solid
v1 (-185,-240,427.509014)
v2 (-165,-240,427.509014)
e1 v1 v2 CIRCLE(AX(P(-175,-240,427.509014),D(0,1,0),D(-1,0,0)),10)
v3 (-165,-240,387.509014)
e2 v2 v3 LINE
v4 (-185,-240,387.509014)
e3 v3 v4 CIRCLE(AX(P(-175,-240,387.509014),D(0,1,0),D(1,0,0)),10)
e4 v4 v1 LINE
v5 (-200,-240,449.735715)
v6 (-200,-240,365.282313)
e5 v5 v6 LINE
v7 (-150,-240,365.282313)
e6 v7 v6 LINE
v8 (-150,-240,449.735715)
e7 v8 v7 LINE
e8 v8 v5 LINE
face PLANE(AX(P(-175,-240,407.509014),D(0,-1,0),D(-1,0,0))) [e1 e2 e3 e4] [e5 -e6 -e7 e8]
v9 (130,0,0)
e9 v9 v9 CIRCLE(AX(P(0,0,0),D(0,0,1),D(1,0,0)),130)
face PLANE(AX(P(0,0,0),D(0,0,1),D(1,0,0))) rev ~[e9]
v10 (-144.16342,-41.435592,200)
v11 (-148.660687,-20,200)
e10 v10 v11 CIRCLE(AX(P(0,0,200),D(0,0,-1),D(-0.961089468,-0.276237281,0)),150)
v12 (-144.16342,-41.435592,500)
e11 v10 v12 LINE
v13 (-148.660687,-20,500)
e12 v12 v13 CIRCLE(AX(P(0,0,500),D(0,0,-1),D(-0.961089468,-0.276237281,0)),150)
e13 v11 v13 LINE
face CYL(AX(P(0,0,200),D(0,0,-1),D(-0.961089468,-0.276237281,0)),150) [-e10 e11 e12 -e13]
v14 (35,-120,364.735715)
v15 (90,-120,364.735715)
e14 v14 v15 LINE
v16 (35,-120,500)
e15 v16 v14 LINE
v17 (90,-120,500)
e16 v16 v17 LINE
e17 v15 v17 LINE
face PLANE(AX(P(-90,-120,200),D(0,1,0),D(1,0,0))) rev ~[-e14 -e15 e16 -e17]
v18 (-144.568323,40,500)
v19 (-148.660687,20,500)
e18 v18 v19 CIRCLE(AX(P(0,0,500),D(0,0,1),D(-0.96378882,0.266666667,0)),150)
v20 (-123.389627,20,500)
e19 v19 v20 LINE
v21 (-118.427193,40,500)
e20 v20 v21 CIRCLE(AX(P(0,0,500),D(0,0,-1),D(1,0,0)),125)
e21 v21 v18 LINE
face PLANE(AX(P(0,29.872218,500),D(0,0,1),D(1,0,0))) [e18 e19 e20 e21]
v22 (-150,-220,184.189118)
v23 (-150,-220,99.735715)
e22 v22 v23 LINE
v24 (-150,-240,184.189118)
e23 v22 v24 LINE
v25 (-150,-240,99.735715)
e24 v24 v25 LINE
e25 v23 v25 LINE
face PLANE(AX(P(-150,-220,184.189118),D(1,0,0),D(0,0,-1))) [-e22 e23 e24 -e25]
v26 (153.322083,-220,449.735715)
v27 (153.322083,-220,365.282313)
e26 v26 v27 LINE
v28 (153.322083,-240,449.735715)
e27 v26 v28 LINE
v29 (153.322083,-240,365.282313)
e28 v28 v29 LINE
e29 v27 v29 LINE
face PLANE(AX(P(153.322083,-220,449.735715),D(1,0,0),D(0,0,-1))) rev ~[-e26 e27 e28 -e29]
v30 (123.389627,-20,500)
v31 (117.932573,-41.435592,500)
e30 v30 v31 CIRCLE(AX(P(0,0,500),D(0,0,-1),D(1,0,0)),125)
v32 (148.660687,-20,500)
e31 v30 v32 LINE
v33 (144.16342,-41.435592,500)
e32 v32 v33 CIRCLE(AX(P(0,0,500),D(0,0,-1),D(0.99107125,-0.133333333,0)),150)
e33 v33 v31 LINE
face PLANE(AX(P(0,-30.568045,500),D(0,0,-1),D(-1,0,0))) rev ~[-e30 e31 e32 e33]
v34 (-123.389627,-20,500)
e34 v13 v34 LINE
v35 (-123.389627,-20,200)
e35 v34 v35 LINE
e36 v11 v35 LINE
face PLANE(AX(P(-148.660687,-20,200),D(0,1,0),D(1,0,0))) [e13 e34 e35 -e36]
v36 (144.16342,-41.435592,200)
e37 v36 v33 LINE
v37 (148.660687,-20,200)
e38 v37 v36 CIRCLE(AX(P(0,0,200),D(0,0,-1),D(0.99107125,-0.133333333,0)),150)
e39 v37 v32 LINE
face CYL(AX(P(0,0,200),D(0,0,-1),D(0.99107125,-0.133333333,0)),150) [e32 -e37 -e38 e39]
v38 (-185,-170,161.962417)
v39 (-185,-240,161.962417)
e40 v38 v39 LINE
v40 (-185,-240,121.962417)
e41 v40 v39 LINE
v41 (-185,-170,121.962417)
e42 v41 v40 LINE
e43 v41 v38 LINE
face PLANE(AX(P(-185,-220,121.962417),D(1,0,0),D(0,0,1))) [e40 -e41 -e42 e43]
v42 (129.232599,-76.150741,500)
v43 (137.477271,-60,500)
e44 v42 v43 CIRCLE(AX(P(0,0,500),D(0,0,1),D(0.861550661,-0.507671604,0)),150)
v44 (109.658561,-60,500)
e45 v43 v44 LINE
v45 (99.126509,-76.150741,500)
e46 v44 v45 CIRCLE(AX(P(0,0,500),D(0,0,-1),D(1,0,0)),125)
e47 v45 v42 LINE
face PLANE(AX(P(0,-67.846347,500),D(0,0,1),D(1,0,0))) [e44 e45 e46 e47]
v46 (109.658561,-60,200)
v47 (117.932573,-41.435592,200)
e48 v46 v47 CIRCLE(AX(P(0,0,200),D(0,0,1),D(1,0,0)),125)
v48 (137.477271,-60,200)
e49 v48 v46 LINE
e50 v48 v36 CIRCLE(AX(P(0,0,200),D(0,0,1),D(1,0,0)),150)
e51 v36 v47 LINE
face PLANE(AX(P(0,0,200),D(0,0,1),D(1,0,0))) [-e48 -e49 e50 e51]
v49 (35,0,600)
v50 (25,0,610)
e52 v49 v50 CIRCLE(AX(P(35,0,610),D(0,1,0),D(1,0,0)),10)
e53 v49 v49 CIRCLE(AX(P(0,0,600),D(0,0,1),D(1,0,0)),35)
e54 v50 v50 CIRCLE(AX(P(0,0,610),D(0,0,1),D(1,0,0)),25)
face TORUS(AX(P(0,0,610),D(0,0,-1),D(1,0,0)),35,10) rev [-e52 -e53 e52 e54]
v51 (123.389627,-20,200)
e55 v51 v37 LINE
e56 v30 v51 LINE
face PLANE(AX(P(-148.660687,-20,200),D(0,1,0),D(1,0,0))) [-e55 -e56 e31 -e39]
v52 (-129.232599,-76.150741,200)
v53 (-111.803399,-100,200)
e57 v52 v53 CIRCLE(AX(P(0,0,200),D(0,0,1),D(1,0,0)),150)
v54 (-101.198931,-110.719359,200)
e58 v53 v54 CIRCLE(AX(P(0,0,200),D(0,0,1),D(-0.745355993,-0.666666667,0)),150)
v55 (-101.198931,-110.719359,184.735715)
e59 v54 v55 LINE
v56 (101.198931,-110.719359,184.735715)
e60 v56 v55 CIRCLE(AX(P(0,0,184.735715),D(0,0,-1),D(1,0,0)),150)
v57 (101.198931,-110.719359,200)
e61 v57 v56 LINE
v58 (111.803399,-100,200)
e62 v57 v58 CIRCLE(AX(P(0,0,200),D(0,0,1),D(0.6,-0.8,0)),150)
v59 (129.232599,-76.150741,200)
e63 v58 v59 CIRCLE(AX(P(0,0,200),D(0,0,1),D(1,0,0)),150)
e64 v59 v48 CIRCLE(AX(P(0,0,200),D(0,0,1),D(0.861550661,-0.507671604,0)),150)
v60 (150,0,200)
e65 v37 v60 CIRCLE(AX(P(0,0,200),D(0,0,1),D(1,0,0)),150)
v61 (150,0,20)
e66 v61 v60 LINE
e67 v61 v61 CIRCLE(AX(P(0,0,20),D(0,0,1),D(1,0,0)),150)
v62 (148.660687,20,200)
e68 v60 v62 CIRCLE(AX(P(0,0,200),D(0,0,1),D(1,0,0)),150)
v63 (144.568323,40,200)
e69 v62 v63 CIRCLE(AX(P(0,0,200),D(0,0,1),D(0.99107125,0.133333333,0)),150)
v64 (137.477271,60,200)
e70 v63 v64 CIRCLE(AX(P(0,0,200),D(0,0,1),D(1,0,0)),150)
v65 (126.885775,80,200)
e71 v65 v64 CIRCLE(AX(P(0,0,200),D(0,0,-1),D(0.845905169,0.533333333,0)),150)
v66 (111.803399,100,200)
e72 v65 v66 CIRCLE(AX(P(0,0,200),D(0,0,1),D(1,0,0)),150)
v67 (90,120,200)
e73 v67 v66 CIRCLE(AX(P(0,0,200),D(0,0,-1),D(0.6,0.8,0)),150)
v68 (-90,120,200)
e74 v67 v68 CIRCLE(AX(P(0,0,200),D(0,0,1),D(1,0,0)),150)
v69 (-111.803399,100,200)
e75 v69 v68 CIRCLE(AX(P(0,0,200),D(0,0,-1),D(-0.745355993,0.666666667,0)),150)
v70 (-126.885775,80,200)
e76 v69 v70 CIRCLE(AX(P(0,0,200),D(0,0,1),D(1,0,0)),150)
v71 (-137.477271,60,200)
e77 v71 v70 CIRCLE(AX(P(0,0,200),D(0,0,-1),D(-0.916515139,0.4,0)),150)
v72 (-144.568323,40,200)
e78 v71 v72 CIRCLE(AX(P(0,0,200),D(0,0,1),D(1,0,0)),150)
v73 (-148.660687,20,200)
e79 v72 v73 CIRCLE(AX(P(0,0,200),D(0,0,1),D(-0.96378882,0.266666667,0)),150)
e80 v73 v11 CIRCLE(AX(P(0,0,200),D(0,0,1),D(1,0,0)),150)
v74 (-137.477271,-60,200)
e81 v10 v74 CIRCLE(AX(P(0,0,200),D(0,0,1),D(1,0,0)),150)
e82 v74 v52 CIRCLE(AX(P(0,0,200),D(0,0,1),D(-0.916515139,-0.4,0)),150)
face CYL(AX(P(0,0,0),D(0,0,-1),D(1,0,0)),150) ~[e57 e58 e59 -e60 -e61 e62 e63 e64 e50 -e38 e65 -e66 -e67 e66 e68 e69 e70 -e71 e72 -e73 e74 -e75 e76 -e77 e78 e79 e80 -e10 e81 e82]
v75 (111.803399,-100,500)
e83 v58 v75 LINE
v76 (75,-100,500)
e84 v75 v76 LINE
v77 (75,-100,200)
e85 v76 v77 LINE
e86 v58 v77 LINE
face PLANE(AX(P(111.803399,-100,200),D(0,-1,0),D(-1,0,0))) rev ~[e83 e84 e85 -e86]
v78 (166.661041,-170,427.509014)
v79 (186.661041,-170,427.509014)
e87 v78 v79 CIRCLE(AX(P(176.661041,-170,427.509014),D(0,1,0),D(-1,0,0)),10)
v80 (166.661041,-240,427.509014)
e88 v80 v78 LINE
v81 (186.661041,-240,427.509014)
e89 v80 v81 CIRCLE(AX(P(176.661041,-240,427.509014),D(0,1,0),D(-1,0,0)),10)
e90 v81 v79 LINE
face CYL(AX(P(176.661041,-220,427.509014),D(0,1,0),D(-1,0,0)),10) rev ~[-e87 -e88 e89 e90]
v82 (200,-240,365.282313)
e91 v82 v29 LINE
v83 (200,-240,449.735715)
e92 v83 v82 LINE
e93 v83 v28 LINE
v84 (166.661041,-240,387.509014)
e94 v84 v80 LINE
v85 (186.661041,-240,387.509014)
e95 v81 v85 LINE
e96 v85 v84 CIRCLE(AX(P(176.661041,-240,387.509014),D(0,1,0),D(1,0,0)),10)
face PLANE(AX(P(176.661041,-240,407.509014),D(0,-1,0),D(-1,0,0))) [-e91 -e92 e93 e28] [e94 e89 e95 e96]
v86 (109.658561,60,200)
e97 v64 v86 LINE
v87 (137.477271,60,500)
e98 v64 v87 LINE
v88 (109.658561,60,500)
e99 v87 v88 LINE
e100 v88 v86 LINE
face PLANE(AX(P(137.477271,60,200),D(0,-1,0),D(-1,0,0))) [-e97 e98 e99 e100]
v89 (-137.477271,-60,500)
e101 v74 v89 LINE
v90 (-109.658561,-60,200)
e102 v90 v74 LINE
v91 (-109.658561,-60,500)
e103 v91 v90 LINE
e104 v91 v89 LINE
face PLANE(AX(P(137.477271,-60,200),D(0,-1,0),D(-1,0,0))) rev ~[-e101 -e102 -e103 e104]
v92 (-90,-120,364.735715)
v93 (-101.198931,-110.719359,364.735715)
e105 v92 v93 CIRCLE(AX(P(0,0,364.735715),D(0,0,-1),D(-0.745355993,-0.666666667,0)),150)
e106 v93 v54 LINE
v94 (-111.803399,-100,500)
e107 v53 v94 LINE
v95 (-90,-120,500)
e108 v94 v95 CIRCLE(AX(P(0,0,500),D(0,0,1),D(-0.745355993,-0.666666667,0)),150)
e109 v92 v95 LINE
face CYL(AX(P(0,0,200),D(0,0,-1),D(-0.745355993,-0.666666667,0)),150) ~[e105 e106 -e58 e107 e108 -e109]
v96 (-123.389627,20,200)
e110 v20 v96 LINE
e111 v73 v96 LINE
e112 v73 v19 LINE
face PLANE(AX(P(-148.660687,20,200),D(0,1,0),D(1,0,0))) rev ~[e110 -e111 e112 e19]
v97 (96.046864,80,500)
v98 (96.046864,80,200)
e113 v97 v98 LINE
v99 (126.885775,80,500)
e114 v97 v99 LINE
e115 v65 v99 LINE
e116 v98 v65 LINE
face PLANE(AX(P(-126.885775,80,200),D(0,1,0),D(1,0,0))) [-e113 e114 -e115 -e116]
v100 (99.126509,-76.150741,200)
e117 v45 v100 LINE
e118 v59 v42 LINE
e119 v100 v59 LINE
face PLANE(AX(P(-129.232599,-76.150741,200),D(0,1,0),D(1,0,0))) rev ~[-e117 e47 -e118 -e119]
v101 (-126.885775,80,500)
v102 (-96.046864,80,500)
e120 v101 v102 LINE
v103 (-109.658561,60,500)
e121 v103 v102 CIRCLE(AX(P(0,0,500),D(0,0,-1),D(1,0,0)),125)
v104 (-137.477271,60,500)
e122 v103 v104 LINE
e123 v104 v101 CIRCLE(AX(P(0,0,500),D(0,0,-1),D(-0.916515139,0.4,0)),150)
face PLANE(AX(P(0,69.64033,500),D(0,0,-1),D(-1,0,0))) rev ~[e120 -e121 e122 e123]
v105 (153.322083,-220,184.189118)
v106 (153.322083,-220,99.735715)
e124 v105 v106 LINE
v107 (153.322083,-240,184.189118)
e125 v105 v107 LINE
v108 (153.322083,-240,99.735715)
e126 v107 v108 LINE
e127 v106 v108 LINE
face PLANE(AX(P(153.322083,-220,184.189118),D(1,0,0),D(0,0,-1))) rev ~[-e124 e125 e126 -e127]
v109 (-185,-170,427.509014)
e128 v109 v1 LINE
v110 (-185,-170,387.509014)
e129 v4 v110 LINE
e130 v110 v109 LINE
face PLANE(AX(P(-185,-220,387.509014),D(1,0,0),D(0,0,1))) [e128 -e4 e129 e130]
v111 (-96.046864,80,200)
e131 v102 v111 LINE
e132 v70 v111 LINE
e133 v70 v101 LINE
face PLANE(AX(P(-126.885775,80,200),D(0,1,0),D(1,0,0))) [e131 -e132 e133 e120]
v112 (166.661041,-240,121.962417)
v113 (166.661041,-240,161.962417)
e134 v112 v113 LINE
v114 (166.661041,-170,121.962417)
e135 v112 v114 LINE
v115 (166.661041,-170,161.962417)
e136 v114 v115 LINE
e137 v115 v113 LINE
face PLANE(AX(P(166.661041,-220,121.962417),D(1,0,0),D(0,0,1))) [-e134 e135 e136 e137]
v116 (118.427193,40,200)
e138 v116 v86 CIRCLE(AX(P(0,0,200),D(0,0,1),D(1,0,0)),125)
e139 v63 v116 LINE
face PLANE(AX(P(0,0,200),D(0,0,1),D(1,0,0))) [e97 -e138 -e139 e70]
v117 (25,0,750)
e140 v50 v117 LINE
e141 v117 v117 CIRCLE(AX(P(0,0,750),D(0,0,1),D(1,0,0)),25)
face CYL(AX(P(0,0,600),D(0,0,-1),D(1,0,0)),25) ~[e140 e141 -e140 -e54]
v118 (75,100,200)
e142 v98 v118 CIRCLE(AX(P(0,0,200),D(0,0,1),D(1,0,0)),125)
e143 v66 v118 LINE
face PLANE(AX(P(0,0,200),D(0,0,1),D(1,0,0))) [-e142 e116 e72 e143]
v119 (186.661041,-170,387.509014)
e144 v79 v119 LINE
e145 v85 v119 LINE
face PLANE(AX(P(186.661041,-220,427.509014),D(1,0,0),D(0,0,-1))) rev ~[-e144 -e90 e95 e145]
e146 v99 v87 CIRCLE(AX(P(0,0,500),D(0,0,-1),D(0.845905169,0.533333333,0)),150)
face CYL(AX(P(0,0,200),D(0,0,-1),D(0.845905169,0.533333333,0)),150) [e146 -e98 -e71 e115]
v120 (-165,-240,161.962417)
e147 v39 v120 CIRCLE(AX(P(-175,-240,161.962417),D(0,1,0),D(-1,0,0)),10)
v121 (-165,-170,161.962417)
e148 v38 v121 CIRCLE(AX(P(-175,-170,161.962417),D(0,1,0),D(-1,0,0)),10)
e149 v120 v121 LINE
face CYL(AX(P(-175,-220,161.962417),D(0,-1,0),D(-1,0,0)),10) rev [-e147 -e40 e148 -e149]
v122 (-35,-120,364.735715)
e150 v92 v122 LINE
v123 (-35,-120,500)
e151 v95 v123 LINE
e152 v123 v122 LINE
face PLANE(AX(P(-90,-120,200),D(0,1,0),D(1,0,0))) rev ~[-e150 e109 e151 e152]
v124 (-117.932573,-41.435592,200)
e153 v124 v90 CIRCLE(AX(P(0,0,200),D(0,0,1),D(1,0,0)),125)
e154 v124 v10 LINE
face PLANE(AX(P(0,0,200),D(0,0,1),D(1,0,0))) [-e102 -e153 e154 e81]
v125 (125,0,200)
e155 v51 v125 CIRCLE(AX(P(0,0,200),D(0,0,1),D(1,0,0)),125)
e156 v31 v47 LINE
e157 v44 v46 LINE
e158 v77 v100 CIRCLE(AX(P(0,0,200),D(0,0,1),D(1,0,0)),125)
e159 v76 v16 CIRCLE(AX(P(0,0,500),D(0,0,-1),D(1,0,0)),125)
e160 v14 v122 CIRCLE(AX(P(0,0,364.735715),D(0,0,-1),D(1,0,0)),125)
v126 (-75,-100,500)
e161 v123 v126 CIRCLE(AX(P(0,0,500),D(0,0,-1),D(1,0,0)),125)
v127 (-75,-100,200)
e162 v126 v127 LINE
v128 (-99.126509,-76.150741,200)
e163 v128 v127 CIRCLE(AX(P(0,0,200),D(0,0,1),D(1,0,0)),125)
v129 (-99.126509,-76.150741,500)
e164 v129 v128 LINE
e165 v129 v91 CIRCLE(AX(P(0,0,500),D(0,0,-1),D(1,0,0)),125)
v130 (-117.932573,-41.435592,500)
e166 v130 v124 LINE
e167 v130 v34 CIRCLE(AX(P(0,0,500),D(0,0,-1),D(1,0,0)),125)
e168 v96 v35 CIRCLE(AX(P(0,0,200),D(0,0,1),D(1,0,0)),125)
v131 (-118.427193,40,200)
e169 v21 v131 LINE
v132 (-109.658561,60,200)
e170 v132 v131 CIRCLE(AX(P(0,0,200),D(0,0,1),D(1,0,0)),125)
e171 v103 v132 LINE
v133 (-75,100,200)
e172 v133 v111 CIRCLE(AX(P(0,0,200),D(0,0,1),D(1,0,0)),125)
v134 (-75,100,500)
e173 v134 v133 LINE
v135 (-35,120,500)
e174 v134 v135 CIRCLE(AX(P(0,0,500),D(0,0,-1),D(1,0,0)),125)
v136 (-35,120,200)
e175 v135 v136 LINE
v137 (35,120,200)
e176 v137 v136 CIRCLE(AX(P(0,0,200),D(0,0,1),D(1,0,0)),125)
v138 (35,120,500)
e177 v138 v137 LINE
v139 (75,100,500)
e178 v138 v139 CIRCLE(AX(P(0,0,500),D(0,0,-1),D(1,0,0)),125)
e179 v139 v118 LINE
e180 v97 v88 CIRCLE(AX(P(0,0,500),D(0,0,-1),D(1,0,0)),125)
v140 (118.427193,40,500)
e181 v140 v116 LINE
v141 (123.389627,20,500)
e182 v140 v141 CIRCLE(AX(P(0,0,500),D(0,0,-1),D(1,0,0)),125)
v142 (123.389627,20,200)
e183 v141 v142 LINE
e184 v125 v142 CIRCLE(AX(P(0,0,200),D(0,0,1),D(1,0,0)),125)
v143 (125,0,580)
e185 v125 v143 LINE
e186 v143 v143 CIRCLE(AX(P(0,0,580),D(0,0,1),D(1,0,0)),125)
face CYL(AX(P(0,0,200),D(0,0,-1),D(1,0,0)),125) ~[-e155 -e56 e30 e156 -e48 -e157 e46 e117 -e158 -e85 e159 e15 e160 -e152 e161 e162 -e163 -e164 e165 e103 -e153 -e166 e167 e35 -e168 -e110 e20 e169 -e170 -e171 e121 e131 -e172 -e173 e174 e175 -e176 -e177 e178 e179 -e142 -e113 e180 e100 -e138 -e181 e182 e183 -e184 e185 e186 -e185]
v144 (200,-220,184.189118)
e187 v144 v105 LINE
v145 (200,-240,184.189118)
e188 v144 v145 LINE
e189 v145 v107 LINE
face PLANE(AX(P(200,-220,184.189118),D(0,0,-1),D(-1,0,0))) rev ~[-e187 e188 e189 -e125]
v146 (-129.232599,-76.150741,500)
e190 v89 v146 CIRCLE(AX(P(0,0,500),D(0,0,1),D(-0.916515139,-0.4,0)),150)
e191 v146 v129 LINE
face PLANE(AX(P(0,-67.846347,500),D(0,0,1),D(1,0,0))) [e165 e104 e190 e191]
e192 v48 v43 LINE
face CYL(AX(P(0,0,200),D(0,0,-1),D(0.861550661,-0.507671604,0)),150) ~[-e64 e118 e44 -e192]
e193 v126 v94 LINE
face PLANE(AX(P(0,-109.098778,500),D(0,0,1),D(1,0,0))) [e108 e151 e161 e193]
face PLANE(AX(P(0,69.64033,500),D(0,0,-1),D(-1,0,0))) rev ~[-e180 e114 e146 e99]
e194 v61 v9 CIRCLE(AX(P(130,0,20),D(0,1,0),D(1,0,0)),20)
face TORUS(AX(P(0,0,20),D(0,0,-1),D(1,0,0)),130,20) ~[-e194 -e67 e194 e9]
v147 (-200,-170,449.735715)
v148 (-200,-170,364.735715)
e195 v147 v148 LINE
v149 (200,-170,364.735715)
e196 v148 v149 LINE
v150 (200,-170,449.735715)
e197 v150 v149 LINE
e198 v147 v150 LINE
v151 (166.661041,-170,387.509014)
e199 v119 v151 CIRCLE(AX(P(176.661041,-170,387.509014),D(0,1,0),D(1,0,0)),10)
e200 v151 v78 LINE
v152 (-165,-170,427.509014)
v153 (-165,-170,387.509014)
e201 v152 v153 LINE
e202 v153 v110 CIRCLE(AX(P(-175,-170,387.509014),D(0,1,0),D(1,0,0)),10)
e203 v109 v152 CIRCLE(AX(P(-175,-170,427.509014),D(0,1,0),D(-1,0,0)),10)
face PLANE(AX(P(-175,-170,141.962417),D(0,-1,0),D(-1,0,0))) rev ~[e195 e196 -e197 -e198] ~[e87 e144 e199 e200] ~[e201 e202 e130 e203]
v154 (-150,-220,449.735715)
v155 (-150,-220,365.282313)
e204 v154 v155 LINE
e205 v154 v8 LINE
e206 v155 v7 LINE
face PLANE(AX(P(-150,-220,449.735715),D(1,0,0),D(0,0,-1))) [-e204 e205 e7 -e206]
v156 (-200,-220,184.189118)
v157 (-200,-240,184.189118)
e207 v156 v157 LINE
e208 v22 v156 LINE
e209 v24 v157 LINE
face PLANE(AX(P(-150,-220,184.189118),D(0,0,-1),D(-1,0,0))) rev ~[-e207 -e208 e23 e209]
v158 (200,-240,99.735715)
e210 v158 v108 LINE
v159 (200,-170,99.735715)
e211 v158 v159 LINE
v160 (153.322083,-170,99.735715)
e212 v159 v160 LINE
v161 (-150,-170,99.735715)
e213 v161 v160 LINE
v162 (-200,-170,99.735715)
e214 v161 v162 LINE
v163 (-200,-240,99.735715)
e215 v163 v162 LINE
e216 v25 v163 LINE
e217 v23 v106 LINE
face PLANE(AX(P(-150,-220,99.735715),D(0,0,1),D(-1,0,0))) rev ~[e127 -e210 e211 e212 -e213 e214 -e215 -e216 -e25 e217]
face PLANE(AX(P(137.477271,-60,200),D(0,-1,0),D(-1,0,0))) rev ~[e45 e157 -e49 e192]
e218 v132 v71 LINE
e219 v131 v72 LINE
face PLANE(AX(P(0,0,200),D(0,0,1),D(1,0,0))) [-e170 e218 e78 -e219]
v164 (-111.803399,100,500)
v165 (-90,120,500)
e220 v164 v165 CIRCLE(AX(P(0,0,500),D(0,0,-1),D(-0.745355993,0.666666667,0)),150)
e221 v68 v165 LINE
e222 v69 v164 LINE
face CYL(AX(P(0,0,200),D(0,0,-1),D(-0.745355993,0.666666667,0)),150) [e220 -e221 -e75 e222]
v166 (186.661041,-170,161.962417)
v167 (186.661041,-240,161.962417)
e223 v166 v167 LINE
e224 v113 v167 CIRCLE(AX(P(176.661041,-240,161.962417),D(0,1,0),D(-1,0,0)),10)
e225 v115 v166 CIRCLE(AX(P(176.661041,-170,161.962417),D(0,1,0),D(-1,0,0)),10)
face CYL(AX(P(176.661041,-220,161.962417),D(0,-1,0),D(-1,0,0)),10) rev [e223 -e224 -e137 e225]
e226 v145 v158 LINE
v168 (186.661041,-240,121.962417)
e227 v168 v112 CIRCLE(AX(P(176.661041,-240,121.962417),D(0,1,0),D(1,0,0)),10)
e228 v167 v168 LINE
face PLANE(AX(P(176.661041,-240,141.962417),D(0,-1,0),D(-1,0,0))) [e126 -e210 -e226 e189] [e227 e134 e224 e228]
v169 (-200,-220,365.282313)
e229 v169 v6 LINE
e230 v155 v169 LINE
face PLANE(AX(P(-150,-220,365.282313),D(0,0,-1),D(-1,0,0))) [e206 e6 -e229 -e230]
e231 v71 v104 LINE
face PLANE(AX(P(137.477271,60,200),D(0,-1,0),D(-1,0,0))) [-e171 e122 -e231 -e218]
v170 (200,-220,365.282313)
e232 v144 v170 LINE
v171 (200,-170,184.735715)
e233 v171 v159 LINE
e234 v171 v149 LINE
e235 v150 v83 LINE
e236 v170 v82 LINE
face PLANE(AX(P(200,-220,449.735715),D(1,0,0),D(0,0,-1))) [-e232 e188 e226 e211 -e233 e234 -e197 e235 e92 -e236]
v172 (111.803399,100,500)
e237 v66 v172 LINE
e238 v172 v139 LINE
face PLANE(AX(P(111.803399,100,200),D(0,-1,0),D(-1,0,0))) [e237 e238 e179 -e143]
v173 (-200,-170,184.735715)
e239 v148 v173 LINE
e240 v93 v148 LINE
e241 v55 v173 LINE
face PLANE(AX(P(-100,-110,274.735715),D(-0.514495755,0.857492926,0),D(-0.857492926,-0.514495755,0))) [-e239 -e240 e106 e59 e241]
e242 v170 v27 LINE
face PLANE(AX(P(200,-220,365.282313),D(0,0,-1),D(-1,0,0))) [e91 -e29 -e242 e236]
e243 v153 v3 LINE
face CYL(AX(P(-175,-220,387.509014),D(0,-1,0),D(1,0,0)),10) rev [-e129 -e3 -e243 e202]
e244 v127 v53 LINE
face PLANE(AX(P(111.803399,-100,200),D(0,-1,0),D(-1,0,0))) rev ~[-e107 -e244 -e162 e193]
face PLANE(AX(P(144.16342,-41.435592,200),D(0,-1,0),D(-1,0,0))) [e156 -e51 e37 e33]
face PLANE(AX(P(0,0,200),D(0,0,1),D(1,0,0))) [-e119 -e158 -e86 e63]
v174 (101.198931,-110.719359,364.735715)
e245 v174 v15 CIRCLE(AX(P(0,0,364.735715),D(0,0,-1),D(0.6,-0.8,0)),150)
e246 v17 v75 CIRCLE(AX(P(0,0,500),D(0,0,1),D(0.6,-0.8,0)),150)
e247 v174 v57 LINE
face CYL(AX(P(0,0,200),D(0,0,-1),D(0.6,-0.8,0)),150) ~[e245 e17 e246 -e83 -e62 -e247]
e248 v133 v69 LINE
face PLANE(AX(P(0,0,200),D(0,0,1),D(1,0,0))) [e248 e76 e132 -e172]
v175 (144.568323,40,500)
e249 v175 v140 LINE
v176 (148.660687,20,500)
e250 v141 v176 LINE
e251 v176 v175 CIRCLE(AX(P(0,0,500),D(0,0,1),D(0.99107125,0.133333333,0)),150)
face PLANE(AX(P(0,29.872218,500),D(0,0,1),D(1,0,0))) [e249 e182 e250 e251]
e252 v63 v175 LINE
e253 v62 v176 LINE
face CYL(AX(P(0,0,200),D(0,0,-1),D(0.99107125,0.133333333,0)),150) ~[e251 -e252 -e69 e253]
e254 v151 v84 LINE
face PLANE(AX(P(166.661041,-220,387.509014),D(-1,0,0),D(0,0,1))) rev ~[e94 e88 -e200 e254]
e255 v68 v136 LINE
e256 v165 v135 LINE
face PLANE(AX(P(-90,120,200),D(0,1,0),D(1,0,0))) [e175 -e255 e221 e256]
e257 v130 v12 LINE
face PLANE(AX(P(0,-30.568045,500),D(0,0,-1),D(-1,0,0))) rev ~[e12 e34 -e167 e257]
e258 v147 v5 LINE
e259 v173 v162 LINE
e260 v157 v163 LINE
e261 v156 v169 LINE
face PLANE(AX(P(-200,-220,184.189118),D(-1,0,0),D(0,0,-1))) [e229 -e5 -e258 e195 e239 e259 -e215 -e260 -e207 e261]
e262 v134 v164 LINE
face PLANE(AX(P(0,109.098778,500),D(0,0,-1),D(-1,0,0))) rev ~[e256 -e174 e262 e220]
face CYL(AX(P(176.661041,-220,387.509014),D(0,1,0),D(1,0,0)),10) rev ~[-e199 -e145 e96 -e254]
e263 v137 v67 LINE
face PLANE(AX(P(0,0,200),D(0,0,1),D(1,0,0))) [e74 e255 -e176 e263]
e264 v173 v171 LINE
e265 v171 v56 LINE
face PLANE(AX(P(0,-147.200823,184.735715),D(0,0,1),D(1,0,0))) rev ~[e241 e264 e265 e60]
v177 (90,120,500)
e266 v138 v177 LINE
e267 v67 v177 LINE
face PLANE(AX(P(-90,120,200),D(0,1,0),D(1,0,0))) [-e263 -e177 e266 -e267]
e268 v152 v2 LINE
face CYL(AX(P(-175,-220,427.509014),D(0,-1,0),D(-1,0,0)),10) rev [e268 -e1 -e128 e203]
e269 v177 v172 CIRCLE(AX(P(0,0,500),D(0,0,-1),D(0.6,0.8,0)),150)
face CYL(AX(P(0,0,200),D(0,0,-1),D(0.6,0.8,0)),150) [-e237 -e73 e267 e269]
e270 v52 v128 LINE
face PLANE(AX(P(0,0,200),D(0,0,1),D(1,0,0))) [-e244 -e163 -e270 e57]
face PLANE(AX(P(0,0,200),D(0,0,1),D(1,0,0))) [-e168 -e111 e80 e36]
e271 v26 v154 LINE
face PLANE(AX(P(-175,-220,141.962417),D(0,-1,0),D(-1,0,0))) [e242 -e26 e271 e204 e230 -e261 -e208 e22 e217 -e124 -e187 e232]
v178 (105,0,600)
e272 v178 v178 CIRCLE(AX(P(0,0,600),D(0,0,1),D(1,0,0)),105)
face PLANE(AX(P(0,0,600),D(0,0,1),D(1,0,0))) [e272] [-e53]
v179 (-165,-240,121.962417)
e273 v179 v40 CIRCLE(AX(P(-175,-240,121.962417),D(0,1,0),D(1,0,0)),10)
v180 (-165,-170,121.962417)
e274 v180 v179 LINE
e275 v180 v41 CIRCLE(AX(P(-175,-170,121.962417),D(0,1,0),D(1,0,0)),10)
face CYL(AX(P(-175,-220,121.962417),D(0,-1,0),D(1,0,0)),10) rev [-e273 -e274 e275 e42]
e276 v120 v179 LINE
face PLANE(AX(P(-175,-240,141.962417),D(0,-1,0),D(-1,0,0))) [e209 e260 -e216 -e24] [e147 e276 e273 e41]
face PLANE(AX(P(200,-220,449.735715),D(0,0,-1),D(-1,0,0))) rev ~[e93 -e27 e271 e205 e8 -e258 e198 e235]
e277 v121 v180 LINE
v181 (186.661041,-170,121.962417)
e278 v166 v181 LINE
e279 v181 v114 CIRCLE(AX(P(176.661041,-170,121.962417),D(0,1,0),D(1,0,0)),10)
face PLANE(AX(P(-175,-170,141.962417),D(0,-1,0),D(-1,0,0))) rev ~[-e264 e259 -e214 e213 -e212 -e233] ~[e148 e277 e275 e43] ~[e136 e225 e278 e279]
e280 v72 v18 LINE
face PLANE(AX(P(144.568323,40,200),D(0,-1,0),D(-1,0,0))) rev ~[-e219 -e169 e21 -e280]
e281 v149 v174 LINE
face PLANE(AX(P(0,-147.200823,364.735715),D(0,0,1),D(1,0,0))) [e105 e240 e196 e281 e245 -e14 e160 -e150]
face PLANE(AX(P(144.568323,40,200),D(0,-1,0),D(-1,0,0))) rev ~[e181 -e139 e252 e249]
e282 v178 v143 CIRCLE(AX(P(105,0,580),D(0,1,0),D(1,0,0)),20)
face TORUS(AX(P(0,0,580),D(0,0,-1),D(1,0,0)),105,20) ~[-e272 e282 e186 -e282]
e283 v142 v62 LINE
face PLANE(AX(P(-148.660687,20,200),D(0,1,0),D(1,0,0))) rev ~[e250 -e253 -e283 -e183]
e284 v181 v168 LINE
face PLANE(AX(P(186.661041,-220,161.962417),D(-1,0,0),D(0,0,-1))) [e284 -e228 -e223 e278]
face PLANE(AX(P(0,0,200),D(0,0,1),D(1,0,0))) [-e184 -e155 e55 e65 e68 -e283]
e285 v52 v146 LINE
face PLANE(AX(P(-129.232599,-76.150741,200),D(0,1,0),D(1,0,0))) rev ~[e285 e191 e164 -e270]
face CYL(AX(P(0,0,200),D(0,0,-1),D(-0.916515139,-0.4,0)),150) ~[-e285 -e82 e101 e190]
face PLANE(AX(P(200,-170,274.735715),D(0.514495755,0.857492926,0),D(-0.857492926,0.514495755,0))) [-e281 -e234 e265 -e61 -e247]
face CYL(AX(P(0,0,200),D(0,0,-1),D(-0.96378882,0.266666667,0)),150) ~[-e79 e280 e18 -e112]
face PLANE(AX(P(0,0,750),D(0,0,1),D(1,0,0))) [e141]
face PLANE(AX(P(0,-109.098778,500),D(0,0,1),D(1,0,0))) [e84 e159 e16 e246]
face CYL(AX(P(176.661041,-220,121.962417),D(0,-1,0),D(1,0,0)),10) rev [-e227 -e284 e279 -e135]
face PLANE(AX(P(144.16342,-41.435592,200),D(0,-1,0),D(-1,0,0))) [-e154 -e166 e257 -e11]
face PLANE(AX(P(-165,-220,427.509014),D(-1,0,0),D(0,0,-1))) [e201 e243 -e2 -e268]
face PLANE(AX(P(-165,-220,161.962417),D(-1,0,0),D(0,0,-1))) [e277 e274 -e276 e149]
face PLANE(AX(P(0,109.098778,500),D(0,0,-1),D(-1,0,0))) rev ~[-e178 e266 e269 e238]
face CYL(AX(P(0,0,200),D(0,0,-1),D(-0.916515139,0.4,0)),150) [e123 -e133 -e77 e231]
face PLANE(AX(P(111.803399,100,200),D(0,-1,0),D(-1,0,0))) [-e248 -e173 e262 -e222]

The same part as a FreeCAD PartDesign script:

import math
import FreeCAD as App
import Part
import Sketcher

V = App.Vector
Q = App.Units.Quantity


def edges_at(feature, points):
    """Names of the edges that pass closest to the given points."""
    edges = feature.Shape.Edges
    near = lambda p: min(range(len(edges)), key=lambda i: edges[i].distToShape(Part.Vertex(*p))[0])
    return sorted({f"Edge{near(p) + 1}" for p in points})

doc = App.newDocument("Part")
body = doc.addObject("PartDesign::Body", "Body")

# Sketch on XY plane
sketch1 = body.newObject("Sketcher::SketchObject", "Sketch")
sketch1.AttachmentSupport = (doc.getObject("XY_Plane"), [""])
sketch1.MapMode = "FlatFace"
sketch1.addGeometry(Part.Circle(V(0, 0, 0), V(0, 0, 1), 150), False)
sketch1.addConstraint([
    Sketcher.Constraint("Coincident", 0, 3, -1, 1),
    Sketcher.Constraint("Diameter", 0, Q("300 mm")),
])
pad1 = body.newObject("PartDesign::Pad", "Pad")
pad1.Profile = sketch1
pad1.Length = 200

# Sketch on XY plane
sketch2 = body.newObject("Sketcher::SketchObject", "Sketch001")
sketch2.AttachmentSupport = (doc.getObject("XY_Plane"), [""])
sketch2.MapMode = "FlatFace"
sketch2.AttachmentOffset = App.Placement(V(0, 0, 200), App.Rotation())
sketch2.addGeometry([
    Part.LineSegment(V(90, 120, 0), V(-90, 120, 0)),  # 0
    Part.ArcOfCircle(Part.Circle(V(0, 0, 0), V(0, 0, 1), 150), math.radians(126.87), math.radians(138.19)),  # 1
    Part.LineSegment(V(-112, 100, 0), V(112, 100, 0)),  # 2
    Part.ArcOfCircle(Part.Circle(V(0, 0, 0), V(0, 0, 1), 150), math.radians(41.81), math.radians(53.13)),  # 3
    Part.LineSegment(V(127, 80, 0), V(-127, 80, 0)),  # 4
    Part.ArcOfCircle(Part.Circle(V(0, 0, 0), V(0, 0, 1), 150), math.radians(147.77), math.radians(156.42)),  # 5
    Part.LineSegment(V(-137, 60, 0), V(137, 60, 0)),  # 6
    Part.ArcOfCircle(Part.Circle(V(0, 0, 0), V(0, 0, 1), 150), math.radians(23.58), math.radians(32.23)),  # 7
    Part.LineSegment(V(-144, -41, 0), V(144, -41, 0)),  # 8
    Part.ArcOfCircle(Part.Circle(V(0, 0, 0), V(0, 0, 1), 150), math.radians(-16.04), math.radians(-7.66)),  # 9
    Part.LineSegment(V(149, -20, 0), V(-149, -20, 0)),  # 10
    Part.ArcOfCircle(Part.Circle(V(0, 0, 0), V(0, 0, 1), 150), math.radians(-172.34), math.radians(-163.96)),  # 11
    Part.LineSegment(V(112, -100, 0), V(-112, -100, 0)),  # 12
    Part.ArcOfCircle(Part.Circle(V(0, 0, 0), V(0, 0, 1), 150), math.radians(-138.19), math.radians(-126.87)),  # 13
    Part.LineSegment(V(-90, -120, 0), V(90, -120, 0)),  # 14
    Part.ArcOfCircle(Part.Circle(V(0, 0, 0), V(0, 0, 1), 150), math.radians(-53.13), math.radians(-41.81)),  # 15
    Part.LineSegment(V(145, 40, 0), V(-145, 40, 0)),  # 16
    Part.ArcOfCircle(Part.Circle(V(0, 0, 0), V(0, 0, 1), 150), math.radians(164.53), math.radians(172.34)),  # 17
    Part.LineSegment(V(-149, 20, 0), V(149, 20, 0)),  # 18
    Part.ArcOfCircle(Part.Circle(V(0, 0, 0), V(0, 0, 1), 150), math.radians(7.66), math.radians(15.47)),  # 19
    Part.LineSegment(V(137, -60, 0), V(-137, -60, 0)),  # 20
    Part.ArcOfCircle(Part.Circle(V(0, 0, 0), V(0, 0, 1), 150), math.radians(-156.42), math.radians(-149.49)),  # 21
    Part.LineSegment(V(-129, -76, 0), V(129, -76, 0)),  # 22
    Part.ArcOfCircle(Part.Circle(V(0, 0, 0), V(0, 0, 1), 150), math.radians(-30.51), math.radians(-23.58)),  # 23
], False)
sketch2.addConstraint([
    Sketcher.Constraint("Coincident", 0, 2, 1, 1),
    Sketcher.Constraint("Coincident", 1, 2, 2, 1),
    Sketcher.Constraint("Coincident", 2, 2, 3, 1),
    Sketcher.Constraint("Coincident", 3, 2, 0, 1),
    Sketcher.Constraint("Coincident", 4, 2, 5, 1),
    Sketcher.Constraint("Coincident", 5, 2, 6, 1),
    Sketcher.Constraint("Coincident", 6, 2, 7, 1),
    Sketcher.Constraint("Coincident", 7, 2, 4, 1),
    Sketcher.Constraint("Coincident", 8, 2, 9, 1),
    Sketcher.Constraint("Coincident", 9, 2, 10, 1),
    Sketcher.Constraint("Coincident", 10, 2, 11, 1),
    Sketcher.Constraint("Coincident", 11, 2, 8, 1),
    Sketcher.Constraint("Coincident", 12, 2, 13, 1),
    Sketcher.Constraint("Coincident", 13, 2, 14, 1),
    Sketcher.Constraint("Coincident", 14, 2, 15, 1),
    Sketcher.Constraint("Coincident", 15, 2, 12, 1),
    Sketcher.Constraint("Coincident", 16, 2, 17, 1),
    Sketcher.Constraint("Coincident", 17, 2, 18, 1),
    Sketcher.Constraint("Coincident", 18, 2, 19, 1),
    Sketcher.Constraint("Coincident", 19, 2, 16, 1),
    Sketcher.Constraint("Coincident", 20, 2, 21, 1),
    Sketcher.Constraint("Coincident", 21, 2, 22, 1),
    Sketcher.Constraint("Coincident", 22, 2, 23, 1),
    Sketcher.Constraint("Coincident", 23, 2, 20, 1),
    Sketcher.Constraint("Horizontal", 0),
    Sketcher.Constraint("Horizontal", 2),
    Sketcher.Constraint("Horizontal", 4),
    Sketcher.Constraint("Horizontal", 6),
    Sketcher.Constraint("Horizontal", 8),
    Sketcher.Constraint("Horizontal", 10),
    Sketcher.Constraint("Horizontal", 12),
    Sketcher.Constraint("Horizontal", 14),
    Sketcher.Constraint("Horizontal", 16),
    Sketcher.Constraint("Horizontal", 18),
    Sketcher.Constraint("Horizontal", 20),
    Sketcher.Constraint("Horizontal", 22),
    Sketcher.Constraint("Coincident", 1, 3, -1, 1),
    Sketcher.Constraint("Coincident", 3, 3, -1, 1),
    Sketcher.Constraint("Coincident", 5, 3, -1, 1),
    Sketcher.Constraint("Coincident", 7, 3, -1, 1),
    Sketcher.Constraint("Coincident", 9, 3, -1, 1),
    Sketcher.Constraint("Coincident", 11, 3, -1, 1),
    Sketcher.Constraint("Coincident", 13, 3, -1, 1),
    Sketcher.Constraint("Coincident", 15, 3, -1, 1),
    Sketcher.Constraint("Coincident", 17, 3, -1, 1),
    Sketcher.Constraint("Coincident", 19, 3, -1, 1),
    Sketcher.Constraint("Coincident", 21, 3, -1, 1),
    Sketcher.Constraint("Coincident", 23, 3, -1, 1),
    Sketcher.Constraint("Equal", 1, 3),
    Sketcher.Constraint("Equal", 3, 5),
    Sketcher.Constraint("Equal", 5, 7),
    Sketcher.Constraint("Equal", 7, 9),
    Sketcher.Constraint("Equal", 9, 11),
    Sketcher.Constraint("Equal", 11, 13),
    Sketcher.Constraint("Equal", 13, 15),
    Sketcher.Constraint("Equal", 15, 17),
    Sketcher.Constraint("Equal", 17, 19),
    Sketcher.Constraint("Equal", 19, 21),
    Sketcher.Constraint("Equal", 21, 23),
    Sketcher.Constraint("Vertical", 1, 2, 12, 2),
    Sketcher.Constraint("Vertical", 0, 2, 13, 2),
    Sketcher.Constraint("Vertical", 10, 2, 17, 2),
    Sketcher.Constraint("Vertical", 5, 2, 20, 2),
    Sketcher.Constraint("Radius", 1, Q("150 mm")),
    Sketcher.Constraint("DistanceX", 0, 2, 0, 1, Q("180 mm")),
    Sketcher.Constraint("DistanceY", -1, 1, 1, 2, Q("100 mm")),
    Sketcher.Constraint("DistanceY", -1, 1, 4, 2, Q("80 mm")),
    Sketcher.Constraint("DistanceY", -1, 1, 5, 2, Q("60 mm")),
    Sketcher.Constraint("DistanceY", 9, 2, -1, 1, Q("20 mm")),
    Sketcher.Constraint("DistanceY", -1, 1, 16, 2, Q("40 mm")),
    Sketcher.Constraint("DistanceX", 22, 1, 22, 2, Q("258.465198 mm")),
    Sketcher.Constraint("DistanceX", 8, 1, 8, 2, Q("288.32684 mm")),
])
pad2 = body.newObject("PartDesign::Pad", "Pad001")
pad2.Profile = sketch2
pad2.Length = 300
body2 = doc.addObject("PartDesign::Body", "Body001")

# Sketch on XY plane
sketch3 = body2.newObject("Sketcher::SketchObject", "Sketch002")
sketch3.AttachmentSupport = (doc.getObject("XY_Plane001"), [""])
sketch3.MapMode = "FlatFace"
sketch3.AttachmentOffset = App.Placement(V(0, 0, 200), App.Rotation())
sketch3.addGeometry(Part.Circle(V(0, 0, 0), V(0, 0, 1), 125), False)
sketch3.addConstraint([
    Sketcher.Constraint("Coincident", 0, 3, -1, 1),
    Sketcher.Constraint("Diameter", 0, Q("250 mm")),
])
pad3 = body2.newObject("PartDesign::Pad", "Pad002")
pad3.Profile = sketch3
pad3.Length = 400
body3 = doc.addObject("PartDesign::Body", "Body002")

# Sketch on XZ plane
sketch4 = body3.newObject("Sketcher::SketchObject", "Sketch003")
sketch4.AttachmentSupport = (doc.getObject("XZ_Plane002"), [""])
sketch4.MapMode = "FlatFace"
sketch4.AttachmentOffset = App.Placement(V(0, 0, 220), App.Rotation())
sketch4.addGeometry([
    Part.LineSegment(V(200, 100, 0), V(200, 450, 0)),  # 0
    Part.LineSegment(V(200, 450, 0), V(-200, 450, 0)),  # 1
    Part.LineSegment(V(-200, 450, 0), V(-200, 100, 0)),  # 2
    Part.LineSegment(V(-200, 100, 0), V(200, 100, 0)),  # 3
    Part.LineSegment(V(167, 122, 0), V(167, 162, 0)),  # 4
    Part.ArcOfCircle(Part.Circle(V(177, 162, 0), V(0, 0, 1), 10), math.radians(0), math.radians(180)),  # 5
    Part.LineSegment(V(187, 162, 0), V(187, 122, 0)),  # 6
    Part.ArcOfCircle(Part.Circle(V(177, 122, 0), V(0, 0, 1), 10), math.radians(180), math.radians(360)),  # 7
    Part.LineSegment(V(167, 388, 0), V(167, 428, 0)),  # 8
    Part.ArcOfCircle(Part.Circle(V(177, 428, 0), V(0, 0, 1), 10), math.radians(0), math.radians(180)),  # 9
    Part.LineSegment(V(187, 428, 0), V(187, 388, 0)),  # 10
    Part.ArcOfCircle(Part.Circle(V(177, 388, 0), V(0, 0, 1), 10), math.radians(180), math.radians(360)),  # 11
    Part.LineSegment(V(-185, 388, 0), V(-185, 428, 0)),  # 12
    Part.ArcOfCircle(Part.Circle(V(-175, 428, 0), V(0, 0, 1), 10), math.radians(0), math.radians(180)),  # 13
    Part.LineSegment(V(-165, 428, 0), V(-165, 388, 0)),  # 14
    Part.ArcOfCircle(Part.Circle(V(-175, 388, 0), V(0, 0, 1), 10), math.radians(180), math.radians(360)),  # 15
    Part.LineSegment(V(-185, 122, 0), V(-185, 162, 0)),  # 16
    Part.ArcOfCircle(Part.Circle(V(-175, 162, 0), V(0, 0, 1), 10), math.radians(0), math.radians(180)),  # 17
    Part.LineSegment(V(-165, 162, 0), V(-165, 122, 0)),  # 18
    Part.ArcOfCircle(Part.Circle(V(-175, 122, 0), V(0, 0, 1), 10), math.radians(180), math.radians(360)),  # 19
], False)
sketch4.addConstraint([
    Sketcher.Constraint("Coincident", 0, 2, 1, 1),
    Sketcher.Constraint("Coincident", 1, 2, 2, 1),
    Sketcher.Constraint("Coincident", 2, 2, 3, 1),
    Sketcher.Constraint("Coincident", 3, 2, 0, 1),
    Sketcher.Constraint("Tangent", 4, 2, 5, 2),
    Sketcher.Constraint("Tangent", 5, 1, 6, 1),
    Sketcher.Constraint("Tangent", 6, 2, 7, 2),
    Sketcher.Constraint("Tangent", 7, 1, 4, 1),
    Sketcher.Constraint("Tangent", 8, 2, 9, 2),
    Sketcher.Constraint("Tangent", 9, 1, 10, 1),
    Sketcher.Constraint("Tangent", 10, 2, 11, 2),
    Sketcher.Constraint("Tangent", 11, 1, 8, 1),
    Sketcher.Constraint("Tangent", 12, 2, 13, 2),
    Sketcher.Constraint("Tangent", 13, 1, 14, 1),
    Sketcher.Constraint("Tangent", 14, 2, 15, 2),
    Sketcher.Constraint("Tangent", 15, 1, 12, 1),
    Sketcher.Constraint("Tangent", 16, 2, 17, 2),
    Sketcher.Constraint("Tangent", 17, 1, 18, 1),
    Sketcher.Constraint("Tangent", 18, 2, 19, 2),
    Sketcher.Constraint("Tangent", 19, 1, 16, 1),
    Sketcher.Constraint("Vertical", 0),
    Sketcher.Constraint("Horizontal", 1),
    Sketcher.Constraint("Vertical", 2),
    Sketcher.Constraint("Horizontal", 3),
    Sketcher.Constraint("Vertical", 4),
    Sketcher.Constraint("Vertical", 6),
    Sketcher.Constraint("Vertical", 8),
    Sketcher.Constraint("Vertical", 10),
    Sketcher.Constraint("Vertical", 12),
    Sketcher.Constraint("Vertical", 14),
    Sketcher.Constraint("Vertical", 16),
    Sketcher.Constraint("Vertical", 18),
    Sketcher.Constraint("Equal", 7, 9),
    Sketcher.Constraint("Equal", 11, 13),
    Sketcher.Constraint("Equal", 15, 17),
    Sketcher.Constraint("Horizontal", 9, 3, 13, 3),
    Sketcher.Constraint("Horizontal", 11, 3, 15, 3),
    Sketcher.Constraint("Horizontal", 5, 3, 17, 3),
    Sketcher.Constraint("Horizontal", 7, 3, 19, 3),
    Sketcher.Constraint("Vertical", 7, 3, 9, 3),
    Sketcher.Constraint("Vertical", 15, 3, 17, 3),
    Sketcher.Constraint("Equal", 6, 8),
    Sketcher.Constraint("Radius", 5, Q("10 mm")),
    Sketcher.Constraint("DistanceX", 1, 2, 1, 1, Q("400 mm")),
    Sketcher.Constraint("DistanceY", 0, 1, 0, 2, Q("350 mm")),
    Sketcher.Constraint("DistanceY", 4, 1, 4, 2, Q("40 mm")),
    Sketcher.Constraint("DistanceX", 13, 3, -1, 1, Q("175 mm")),
    Sketcher.Constraint("DistanceX", -1, 1, 0, 2, Q("200 mm")),
    Sketcher.Constraint("DistanceY", 9, 3, 0, 2, Q("22.226701 mm")),
    Sketcher.Constraint("DistanceY", 5, 3, 0, 2, Q("287.773299 mm")),
    Sketcher.Constraint("DistanceX", -1, 1, 5, 3, Q("176.661041 mm")),
    Sketcher.Constraint("DistanceY", -1, 1, 5, 3, Q("161.962417 mm")),
])
pad4 = body3.newObject("PartDesign::Pad", "Pad003")
pad4.Profile = sketch4
pad4.Length = 50
pad4.Reversed = True

# Sketch on XZ plane
sketch5 = body3.newObject("Sketcher::SketchObject", "Sketch004")
sketch5.AttachmentSupport = (doc.getObject("XZ_Plane002"), [""])
sketch5.MapMode = "FlatFace"
sketch5.AttachmentOffset = App.Placement(V(0, 0, 220), App.Rotation())
sketch5.addGeometry([
    Part.LineSegment(V(200, 365, 0), V(200, 450, 0)),  # 0
    Part.LineSegment(V(200, 450, 0), V(153, 450, 0)),  # 1
    Part.LineSegment(V(153, 450, 0), V(153, 365, 0)),  # 2
    Part.LineSegment(V(153, 365, 0), V(200, 365, 0)),  # 3
    Part.ArcOfCircle(Part.Circle(V(177, 388, 0), V(0, 0, 1), 10), math.radians(180), math.radians(360)),  # 4
    Part.LineSegment(V(167, 388, 0), V(167, 428, 0)),  # 5
    Part.ArcOfCircle(Part.Circle(V(177, 428, 0), V(0, 0, 1), 10), math.radians(0), math.radians(180)),  # 6
    Part.LineSegment(V(187, 428, 0), V(187, 388, 0)),  # 7
    Part.LineSegment(V(200, 100, 0), V(200, 184, 0)),  # 8
    Part.LineSegment(V(200, 184, 0), V(153, 184, 0)),  # 9
    Part.LineSegment(V(153, 184, 0), V(153, 100, 0)),  # 10
    Part.LineSegment(V(153, 100, 0), V(200, 100, 0)),  # 11
    Part.LineSegment(V(187, 162, 0), V(187, 122, 0)),  # 12
    Part.ArcOfCircle(Part.Circle(V(177, 122, 0), V(0, 0, 1), 10), math.radians(180), math.radians(360)),  # 13
    Part.LineSegment(V(167, 122, 0), V(167, 162, 0)),  # 14
    Part.ArcOfCircle(Part.Circle(V(177, 162, 0), V(0, 0, 1), 10), math.radians(0), math.radians(180)),  # 15
    Part.LineSegment(V(-150, 365, 0), V(-150, 450, 0)),  # 16
    Part.LineSegment(V(-150, 450, 0), V(-200, 450, 0)),  # 17
    Part.LineSegment(V(-200, 450, 0), V(-200, 365, 0)),  # 18
    Part.LineSegment(V(-200, 365, 0), V(-150, 365, 0)),  # 19
    Part.ArcOfCircle(Part.Circle(V(-175, 388, 0), V(0, 0, 1), 10), math.radians(180), math.radians(360)),  # 20
    Part.LineSegment(V(-185, 388, 0), V(-185, 428, 0)),  # 21
    Part.ArcOfCircle(Part.Circle(V(-175, 428, 0), V(0, 0, 1), 10), math.radians(0), math.radians(180)),  # 22
    Part.LineSegment(V(-165, 428, 0), V(-165, 388, 0)),  # 23
    Part.LineSegment(V(-150, 100, 0), V(-150, 184, 0)),  # 24
    Part.LineSegment(V(-150, 184, 0), V(-200, 184, 0)),  # 25
    Part.LineSegment(V(-200, 184, 0), V(-200, 100, 0)),  # 26
    Part.LineSegment(V(-200, 100, 0), V(-150, 100, 0)),  # 27
    Part.LineSegment(V(-165, 162, 0), V(-165, 122, 0)),  # 28
    Part.ArcOfCircle(Part.Circle(V(-175, 122, 0), V(0, 0, 1), 10), math.radians(180), math.radians(360)),  # 29
    Part.LineSegment(V(-185, 122, 0), V(-185, 162, 0)),  # 30
    Part.ArcOfCircle(Part.Circle(V(-175, 162, 0), V(0, 0, 1), 10), math.radians(0), math.radians(180)),  # 31
], False)
sketch5.addConstraint([
    Sketcher.Constraint("Coincident", 0, 2, 1, 1),
    Sketcher.Constraint("Coincident", 1, 2, 2, 1),
    Sketcher.Constraint("Coincident", 2, 2, 3, 1),
    Sketcher.Constraint("Coincident", 3, 2, 0, 1),
    Sketcher.Constraint("Tangent", 4, 1, 5, 1),
    Sketcher.Constraint("Tangent", 5, 2, 6, 2),
    Sketcher.Constraint("Tangent", 6, 1, 7, 1),
    Sketcher.Constraint("Tangent", 7, 2, 4, 2),
    Sketcher.Constraint("Coincident", 8, 2, 9, 1),
    Sketcher.Constraint("Coincident", 9, 2, 10, 1),
    Sketcher.Constraint("Coincident", 10, 2, 11, 1),
    Sketcher.Constraint("Coincident", 11, 2, 8, 1),
    Sketcher.Constraint("Tangent", 12, 2, 13, 2),
    Sketcher.Constraint("Tangent", 13, 1, 14, 1),
    Sketcher.Constraint("Tangent", 14, 2, 15, 2),
    Sketcher.Constraint("Tangent", 15, 1, 12, 1),
    Sketcher.Constraint("Coincident", 16, 2, 17, 1),
    Sketcher.Constraint("Coincident", 17, 2, 18, 1),
    Sketcher.Constraint("Coincident", 18, 2, 19, 1),
    Sketcher.Constraint("Coincident", 19, 2, 16, 1),
    Sketcher.Constraint("Tangent", 20, 1, 21, 1),
    Sketcher.Constraint("Tangent", 21, 2, 22, 2),
    Sketcher.Constraint("Tangent", 22, 1, 23, 1),
    Sketcher.Constraint("Tangent", 23, 2, 20, 2),
    Sketcher.Constraint("Coincident", 24, 2, 25, 1),
    Sketcher.Constraint("Coincident", 25, 2, 26, 1),
    Sketcher.Constraint("Coincident", 26, 2, 27, 1),
    Sketcher.Constraint("Coincident", 27, 2, 24, 1),
    Sketcher.Constraint("Tangent", 28, 2, 29, 2),
    Sketcher.Constraint("Tangent", 29, 1, 30, 1),
    Sketcher.Constraint("Tangent", 30, 2, 31, 2),
    Sketcher.Constraint("Tangent", 31, 1, 28, 1),
    Sketcher.Constraint("Vertical", 0),
    Sketcher.Constraint("Horizontal", 1),
    Sketcher.Constraint("Vertical", 2),
    Sketcher.Constraint("Horizontal", 3),
    Sketcher.Constraint("Vertical", 5),
    Sketcher.Constraint("Vertical", 7),
    Sketcher.Constraint("Vertical", 8),
    Sketcher.Constraint("Horizontal", 9),
    Sketcher.Constraint("Vertical", 10),
    Sketcher.Constraint("Horizontal", 11),
    Sketcher.Constraint("Vertical", 12),
    Sketcher.Constraint("Vertical", 14),
    Sketcher.Constraint("Vertical", 16),
    Sketcher.Constraint("Horizontal", 17),
    Sketcher.Constraint("Vertical", 18),
    Sketcher.Constraint("Horizontal", 19),
    Sketcher.Constraint("Vertical", 21),
    Sketcher.Constraint("Vertical", 23),
    Sketcher.Constraint("Vertical", 24),
    Sketcher.Constraint("Horizontal", 25),
    Sketcher.Constraint("Vertical", 26),
    Sketcher.Constraint("Horizontal", 27),
    Sketcher.Constraint("Vertical", 28),
    Sketcher.Constraint("Vertical", 30),
    Sketcher.Constraint("Equal", 6, 13),
    Sketcher.Constraint("Equal", 15, 20),
    Sketcher.Constraint("Equal", 22, 29),
    Sketcher.Constraint("Symmetric", 0, 2, 17, 2, -2),
    Sketcher.Constraint("Symmetric", 8, 2, 25, 2, -2),
    Sketcher.Constraint("Horizontal", 4, 3, 20, 3),
    Sketcher.Constraint("Horizontal", 6, 3, 22, 3),
    Sketcher.Constraint("Horizontal", 13, 3, 29, 3),
    Sketcher.Constraint("Horizontal", 15, 3, 31, 3),
    Sketcher.Constraint("Horizontal", 3, 2, 18, 2),
    Sketcher.Constraint("Horizontal", 11, 2, 26, 2),
    Sketcher.Constraint("Vertical", 6, 3, 13, 3),
    Sketcher.Constraint("Vertical", 22, 3, 29, 3),
    Sketcher.Constraint("Vertical", 3, 2, 8, 2),
    Sketcher.Constraint("Vertical", 2, 2, 9, 2),
    Sketcher.Constraint("Vertical", 19, 2, 24, 2),
    Sketcher.Constraint("Equal", 2, 8),
    Sketcher.Constraint("Equal", 7, 12),
    Sketcher.Constraint("Radius", 4, Q("10 mm")),
    Sketcher.Constraint("DistanceX", 17, 2, 17, 1, Q("50 mm")),
    Sketcher.Constraint("DistanceY", 5, 1, 5, 2, Q("40 mm")),
    Sketcher.Constraint("DistanceX", 20, 3, -1, 1, Q("175 mm")),
    Sketcher.Constraint("DistanceX", -1, 1, 0, 2, Q("200 mm")),
    Sketcher.Constraint("DistanceY", 6, 3, 0, 2, Q("22.226701 mm")),
    Sketcher.Constraint("DistanceY", 15, 3, 0, 2, Q("287.773299 mm")),
    Sketcher.Constraint("DistanceY", 2, 2, 4, 3, Q("22.226701 mm")),
    Sketcher.Constraint("DistanceY", 15, 3, 8, 2, Q("22.226701 mm")),
    Sketcher.Constraint("DistanceX", 1, 2, 1, 1, Q("46.677917 mm")),
    Sketcher.Constraint("DistanceX", -1, 1, 4, 3, Q("176.661041 mm")),
    Sketcher.Constraint("DistanceY", -1, 1, 8, 2, Q("184.189118 mm")),
])
pad5 = body3.newObject("PartDesign::Pad", "Pad004")
pad5.Profile = sketch5
pad5.Length = 20
body.AllowCompound = True
doc.recompute()

boolean = body.newObject("PartDesign::Boolean", "Boolean")
boolean.Type = "Fuse"
boolean.addObjects([body2])
doc.recompute()

boolean2 = body.newObject("PartDesign::Boolean", "Boolean001")
boolean2.Type = "Fuse"
boolean2.addObjects([body3])

# Sketch on XY plane
sketch6 = body.newObject("Sketcher::SketchObject", "Sketch005")
sketch6.AttachmentSupport = (doc.getObject("XY_Plane"), [""])
sketch6.MapMode = "FlatFace"
sketch6.AttachmentOffset = App.Placement(V(0, 0, 274.735715), App.Rotation())
sketch6.addGeometry([
    Part.LineSegment(V(-200, -170, 0), V(200, -170, 0)),
    Part.LineSegment(V(200, -170, 0), V(100, -110, 0)),
    Part.LineSegment(V(100, -110, 0), V(-100, -110, 0)),
    Part.LineSegment(V(-100, -110, 0), V(-200, -170, 0)),
], False)
sketch6.addConstraint([
    Sketcher.Constraint("Coincident", 0, 2, 1, 1),
    Sketcher.Constraint("Coincident", 1, 2, 2, 1),
    Sketcher.Constraint("Coincident", 2, 2, 3, 1),
    Sketcher.Constraint("Coincident", 3, 2, 0, 1),
    Sketcher.Constraint("Horizontal", 0),
    Sketcher.Constraint("Horizontal", 2),
    Sketcher.Constraint("Equal", 1, 3),
    Sketcher.Constraint("DistanceX", 0, 1, 0, 2, Q("400 mm")),
    Sketcher.Constraint("DistanceX", 2, 2, 2, 1, Q("200 mm")),
    Sketcher.Constraint("DistanceX", -1, 1, 0, 2, Q("200 mm")),
    Sketcher.Constraint("DistanceY", 0, 2, -1, 1, Q("170 mm")),
    Sketcher.Constraint("DistanceY", 1, 2, -1, 1, Q("110 mm")),
])
pad6 = body.newObject("PartDesign::Pad", "Pad005")
pad6.Profile = sketch6
pad6.Length = 180
pad6.Midplane = True

# Sketch on XY plane
sketch7 = body.newObject("Sketcher::SketchObject", "Sketch006")
sketch7.AttachmentSupport = (doc.getObject("XY_Plane"), [""])
sketch7.MapMode = "FlatFace"
sketch7.AttachmentOffset = App.Placement(V(0, 0, 600), App.Rotation())
sketch7.addGeometry(Part.Circle(V(0, 0, 0), V(0, 0, 1), 25), False)
sketch7.addConstraint([
    Sketcher.Constraint("Coincident", 0, 3, -1, 1),
    Sketcher.Constraint("Diameter", 0, Q("50 mm")),
])
pad7 = body.newObject("PartDesign::Pad", "Pad006")
pad7.Profile = sketch7
pad7.Length = 150
doc.recompute()

fillet = body.newObject("PartDesign::Fillet", "Fillet")
fillet.Base = (pad7, edges_at(pad7, [(-25, 0, 600)]))
fillet.Radius = 10
doc.recompute()

fillet2 = body.newObject("PartDesign::Fillet", "Fillet001")
fillet2.Base = (fillet, edges_at(fillet, [(-125, 0, 600), (-150, 0, 0)]))
fillet2.Radius = 20

doc.recompute()
